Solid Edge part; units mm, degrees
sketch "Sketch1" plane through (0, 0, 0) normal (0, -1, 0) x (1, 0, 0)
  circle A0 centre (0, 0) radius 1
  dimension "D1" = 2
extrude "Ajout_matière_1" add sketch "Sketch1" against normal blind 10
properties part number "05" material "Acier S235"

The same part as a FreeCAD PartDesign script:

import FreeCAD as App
import Part
import Sketcher

V = App.Vector
Q = App.Units.Quantity

doc = App.newDocument("Part")
body = doc.addObject("PartDesign::Body", "Body")

sketch1 = body.newObject("Sketcher::SketchObject", "Sketch")
sketch1.AttachmentSupport = (doc.getObject("XZ_Plane"), [""])
sketch1.MapMode = "FlatFace"
sketch1.addGeometry(Part.Circle(V(0, 0, 0), V(0, 0, 1), 1), False)
sketch1.addConstraint([
    Sketcher.Constraint("Coincident", 0, 3, -1, 1),
    Sketcher.Constraint("Diameter", 0, Q("2 mm")),
])
pad1 = body.newObject("PartDesign::Pad", "Pad")
pad1.Profile = sketch1
pad1.Length = 10
pad1.Reversed = True

doc.recompute()
